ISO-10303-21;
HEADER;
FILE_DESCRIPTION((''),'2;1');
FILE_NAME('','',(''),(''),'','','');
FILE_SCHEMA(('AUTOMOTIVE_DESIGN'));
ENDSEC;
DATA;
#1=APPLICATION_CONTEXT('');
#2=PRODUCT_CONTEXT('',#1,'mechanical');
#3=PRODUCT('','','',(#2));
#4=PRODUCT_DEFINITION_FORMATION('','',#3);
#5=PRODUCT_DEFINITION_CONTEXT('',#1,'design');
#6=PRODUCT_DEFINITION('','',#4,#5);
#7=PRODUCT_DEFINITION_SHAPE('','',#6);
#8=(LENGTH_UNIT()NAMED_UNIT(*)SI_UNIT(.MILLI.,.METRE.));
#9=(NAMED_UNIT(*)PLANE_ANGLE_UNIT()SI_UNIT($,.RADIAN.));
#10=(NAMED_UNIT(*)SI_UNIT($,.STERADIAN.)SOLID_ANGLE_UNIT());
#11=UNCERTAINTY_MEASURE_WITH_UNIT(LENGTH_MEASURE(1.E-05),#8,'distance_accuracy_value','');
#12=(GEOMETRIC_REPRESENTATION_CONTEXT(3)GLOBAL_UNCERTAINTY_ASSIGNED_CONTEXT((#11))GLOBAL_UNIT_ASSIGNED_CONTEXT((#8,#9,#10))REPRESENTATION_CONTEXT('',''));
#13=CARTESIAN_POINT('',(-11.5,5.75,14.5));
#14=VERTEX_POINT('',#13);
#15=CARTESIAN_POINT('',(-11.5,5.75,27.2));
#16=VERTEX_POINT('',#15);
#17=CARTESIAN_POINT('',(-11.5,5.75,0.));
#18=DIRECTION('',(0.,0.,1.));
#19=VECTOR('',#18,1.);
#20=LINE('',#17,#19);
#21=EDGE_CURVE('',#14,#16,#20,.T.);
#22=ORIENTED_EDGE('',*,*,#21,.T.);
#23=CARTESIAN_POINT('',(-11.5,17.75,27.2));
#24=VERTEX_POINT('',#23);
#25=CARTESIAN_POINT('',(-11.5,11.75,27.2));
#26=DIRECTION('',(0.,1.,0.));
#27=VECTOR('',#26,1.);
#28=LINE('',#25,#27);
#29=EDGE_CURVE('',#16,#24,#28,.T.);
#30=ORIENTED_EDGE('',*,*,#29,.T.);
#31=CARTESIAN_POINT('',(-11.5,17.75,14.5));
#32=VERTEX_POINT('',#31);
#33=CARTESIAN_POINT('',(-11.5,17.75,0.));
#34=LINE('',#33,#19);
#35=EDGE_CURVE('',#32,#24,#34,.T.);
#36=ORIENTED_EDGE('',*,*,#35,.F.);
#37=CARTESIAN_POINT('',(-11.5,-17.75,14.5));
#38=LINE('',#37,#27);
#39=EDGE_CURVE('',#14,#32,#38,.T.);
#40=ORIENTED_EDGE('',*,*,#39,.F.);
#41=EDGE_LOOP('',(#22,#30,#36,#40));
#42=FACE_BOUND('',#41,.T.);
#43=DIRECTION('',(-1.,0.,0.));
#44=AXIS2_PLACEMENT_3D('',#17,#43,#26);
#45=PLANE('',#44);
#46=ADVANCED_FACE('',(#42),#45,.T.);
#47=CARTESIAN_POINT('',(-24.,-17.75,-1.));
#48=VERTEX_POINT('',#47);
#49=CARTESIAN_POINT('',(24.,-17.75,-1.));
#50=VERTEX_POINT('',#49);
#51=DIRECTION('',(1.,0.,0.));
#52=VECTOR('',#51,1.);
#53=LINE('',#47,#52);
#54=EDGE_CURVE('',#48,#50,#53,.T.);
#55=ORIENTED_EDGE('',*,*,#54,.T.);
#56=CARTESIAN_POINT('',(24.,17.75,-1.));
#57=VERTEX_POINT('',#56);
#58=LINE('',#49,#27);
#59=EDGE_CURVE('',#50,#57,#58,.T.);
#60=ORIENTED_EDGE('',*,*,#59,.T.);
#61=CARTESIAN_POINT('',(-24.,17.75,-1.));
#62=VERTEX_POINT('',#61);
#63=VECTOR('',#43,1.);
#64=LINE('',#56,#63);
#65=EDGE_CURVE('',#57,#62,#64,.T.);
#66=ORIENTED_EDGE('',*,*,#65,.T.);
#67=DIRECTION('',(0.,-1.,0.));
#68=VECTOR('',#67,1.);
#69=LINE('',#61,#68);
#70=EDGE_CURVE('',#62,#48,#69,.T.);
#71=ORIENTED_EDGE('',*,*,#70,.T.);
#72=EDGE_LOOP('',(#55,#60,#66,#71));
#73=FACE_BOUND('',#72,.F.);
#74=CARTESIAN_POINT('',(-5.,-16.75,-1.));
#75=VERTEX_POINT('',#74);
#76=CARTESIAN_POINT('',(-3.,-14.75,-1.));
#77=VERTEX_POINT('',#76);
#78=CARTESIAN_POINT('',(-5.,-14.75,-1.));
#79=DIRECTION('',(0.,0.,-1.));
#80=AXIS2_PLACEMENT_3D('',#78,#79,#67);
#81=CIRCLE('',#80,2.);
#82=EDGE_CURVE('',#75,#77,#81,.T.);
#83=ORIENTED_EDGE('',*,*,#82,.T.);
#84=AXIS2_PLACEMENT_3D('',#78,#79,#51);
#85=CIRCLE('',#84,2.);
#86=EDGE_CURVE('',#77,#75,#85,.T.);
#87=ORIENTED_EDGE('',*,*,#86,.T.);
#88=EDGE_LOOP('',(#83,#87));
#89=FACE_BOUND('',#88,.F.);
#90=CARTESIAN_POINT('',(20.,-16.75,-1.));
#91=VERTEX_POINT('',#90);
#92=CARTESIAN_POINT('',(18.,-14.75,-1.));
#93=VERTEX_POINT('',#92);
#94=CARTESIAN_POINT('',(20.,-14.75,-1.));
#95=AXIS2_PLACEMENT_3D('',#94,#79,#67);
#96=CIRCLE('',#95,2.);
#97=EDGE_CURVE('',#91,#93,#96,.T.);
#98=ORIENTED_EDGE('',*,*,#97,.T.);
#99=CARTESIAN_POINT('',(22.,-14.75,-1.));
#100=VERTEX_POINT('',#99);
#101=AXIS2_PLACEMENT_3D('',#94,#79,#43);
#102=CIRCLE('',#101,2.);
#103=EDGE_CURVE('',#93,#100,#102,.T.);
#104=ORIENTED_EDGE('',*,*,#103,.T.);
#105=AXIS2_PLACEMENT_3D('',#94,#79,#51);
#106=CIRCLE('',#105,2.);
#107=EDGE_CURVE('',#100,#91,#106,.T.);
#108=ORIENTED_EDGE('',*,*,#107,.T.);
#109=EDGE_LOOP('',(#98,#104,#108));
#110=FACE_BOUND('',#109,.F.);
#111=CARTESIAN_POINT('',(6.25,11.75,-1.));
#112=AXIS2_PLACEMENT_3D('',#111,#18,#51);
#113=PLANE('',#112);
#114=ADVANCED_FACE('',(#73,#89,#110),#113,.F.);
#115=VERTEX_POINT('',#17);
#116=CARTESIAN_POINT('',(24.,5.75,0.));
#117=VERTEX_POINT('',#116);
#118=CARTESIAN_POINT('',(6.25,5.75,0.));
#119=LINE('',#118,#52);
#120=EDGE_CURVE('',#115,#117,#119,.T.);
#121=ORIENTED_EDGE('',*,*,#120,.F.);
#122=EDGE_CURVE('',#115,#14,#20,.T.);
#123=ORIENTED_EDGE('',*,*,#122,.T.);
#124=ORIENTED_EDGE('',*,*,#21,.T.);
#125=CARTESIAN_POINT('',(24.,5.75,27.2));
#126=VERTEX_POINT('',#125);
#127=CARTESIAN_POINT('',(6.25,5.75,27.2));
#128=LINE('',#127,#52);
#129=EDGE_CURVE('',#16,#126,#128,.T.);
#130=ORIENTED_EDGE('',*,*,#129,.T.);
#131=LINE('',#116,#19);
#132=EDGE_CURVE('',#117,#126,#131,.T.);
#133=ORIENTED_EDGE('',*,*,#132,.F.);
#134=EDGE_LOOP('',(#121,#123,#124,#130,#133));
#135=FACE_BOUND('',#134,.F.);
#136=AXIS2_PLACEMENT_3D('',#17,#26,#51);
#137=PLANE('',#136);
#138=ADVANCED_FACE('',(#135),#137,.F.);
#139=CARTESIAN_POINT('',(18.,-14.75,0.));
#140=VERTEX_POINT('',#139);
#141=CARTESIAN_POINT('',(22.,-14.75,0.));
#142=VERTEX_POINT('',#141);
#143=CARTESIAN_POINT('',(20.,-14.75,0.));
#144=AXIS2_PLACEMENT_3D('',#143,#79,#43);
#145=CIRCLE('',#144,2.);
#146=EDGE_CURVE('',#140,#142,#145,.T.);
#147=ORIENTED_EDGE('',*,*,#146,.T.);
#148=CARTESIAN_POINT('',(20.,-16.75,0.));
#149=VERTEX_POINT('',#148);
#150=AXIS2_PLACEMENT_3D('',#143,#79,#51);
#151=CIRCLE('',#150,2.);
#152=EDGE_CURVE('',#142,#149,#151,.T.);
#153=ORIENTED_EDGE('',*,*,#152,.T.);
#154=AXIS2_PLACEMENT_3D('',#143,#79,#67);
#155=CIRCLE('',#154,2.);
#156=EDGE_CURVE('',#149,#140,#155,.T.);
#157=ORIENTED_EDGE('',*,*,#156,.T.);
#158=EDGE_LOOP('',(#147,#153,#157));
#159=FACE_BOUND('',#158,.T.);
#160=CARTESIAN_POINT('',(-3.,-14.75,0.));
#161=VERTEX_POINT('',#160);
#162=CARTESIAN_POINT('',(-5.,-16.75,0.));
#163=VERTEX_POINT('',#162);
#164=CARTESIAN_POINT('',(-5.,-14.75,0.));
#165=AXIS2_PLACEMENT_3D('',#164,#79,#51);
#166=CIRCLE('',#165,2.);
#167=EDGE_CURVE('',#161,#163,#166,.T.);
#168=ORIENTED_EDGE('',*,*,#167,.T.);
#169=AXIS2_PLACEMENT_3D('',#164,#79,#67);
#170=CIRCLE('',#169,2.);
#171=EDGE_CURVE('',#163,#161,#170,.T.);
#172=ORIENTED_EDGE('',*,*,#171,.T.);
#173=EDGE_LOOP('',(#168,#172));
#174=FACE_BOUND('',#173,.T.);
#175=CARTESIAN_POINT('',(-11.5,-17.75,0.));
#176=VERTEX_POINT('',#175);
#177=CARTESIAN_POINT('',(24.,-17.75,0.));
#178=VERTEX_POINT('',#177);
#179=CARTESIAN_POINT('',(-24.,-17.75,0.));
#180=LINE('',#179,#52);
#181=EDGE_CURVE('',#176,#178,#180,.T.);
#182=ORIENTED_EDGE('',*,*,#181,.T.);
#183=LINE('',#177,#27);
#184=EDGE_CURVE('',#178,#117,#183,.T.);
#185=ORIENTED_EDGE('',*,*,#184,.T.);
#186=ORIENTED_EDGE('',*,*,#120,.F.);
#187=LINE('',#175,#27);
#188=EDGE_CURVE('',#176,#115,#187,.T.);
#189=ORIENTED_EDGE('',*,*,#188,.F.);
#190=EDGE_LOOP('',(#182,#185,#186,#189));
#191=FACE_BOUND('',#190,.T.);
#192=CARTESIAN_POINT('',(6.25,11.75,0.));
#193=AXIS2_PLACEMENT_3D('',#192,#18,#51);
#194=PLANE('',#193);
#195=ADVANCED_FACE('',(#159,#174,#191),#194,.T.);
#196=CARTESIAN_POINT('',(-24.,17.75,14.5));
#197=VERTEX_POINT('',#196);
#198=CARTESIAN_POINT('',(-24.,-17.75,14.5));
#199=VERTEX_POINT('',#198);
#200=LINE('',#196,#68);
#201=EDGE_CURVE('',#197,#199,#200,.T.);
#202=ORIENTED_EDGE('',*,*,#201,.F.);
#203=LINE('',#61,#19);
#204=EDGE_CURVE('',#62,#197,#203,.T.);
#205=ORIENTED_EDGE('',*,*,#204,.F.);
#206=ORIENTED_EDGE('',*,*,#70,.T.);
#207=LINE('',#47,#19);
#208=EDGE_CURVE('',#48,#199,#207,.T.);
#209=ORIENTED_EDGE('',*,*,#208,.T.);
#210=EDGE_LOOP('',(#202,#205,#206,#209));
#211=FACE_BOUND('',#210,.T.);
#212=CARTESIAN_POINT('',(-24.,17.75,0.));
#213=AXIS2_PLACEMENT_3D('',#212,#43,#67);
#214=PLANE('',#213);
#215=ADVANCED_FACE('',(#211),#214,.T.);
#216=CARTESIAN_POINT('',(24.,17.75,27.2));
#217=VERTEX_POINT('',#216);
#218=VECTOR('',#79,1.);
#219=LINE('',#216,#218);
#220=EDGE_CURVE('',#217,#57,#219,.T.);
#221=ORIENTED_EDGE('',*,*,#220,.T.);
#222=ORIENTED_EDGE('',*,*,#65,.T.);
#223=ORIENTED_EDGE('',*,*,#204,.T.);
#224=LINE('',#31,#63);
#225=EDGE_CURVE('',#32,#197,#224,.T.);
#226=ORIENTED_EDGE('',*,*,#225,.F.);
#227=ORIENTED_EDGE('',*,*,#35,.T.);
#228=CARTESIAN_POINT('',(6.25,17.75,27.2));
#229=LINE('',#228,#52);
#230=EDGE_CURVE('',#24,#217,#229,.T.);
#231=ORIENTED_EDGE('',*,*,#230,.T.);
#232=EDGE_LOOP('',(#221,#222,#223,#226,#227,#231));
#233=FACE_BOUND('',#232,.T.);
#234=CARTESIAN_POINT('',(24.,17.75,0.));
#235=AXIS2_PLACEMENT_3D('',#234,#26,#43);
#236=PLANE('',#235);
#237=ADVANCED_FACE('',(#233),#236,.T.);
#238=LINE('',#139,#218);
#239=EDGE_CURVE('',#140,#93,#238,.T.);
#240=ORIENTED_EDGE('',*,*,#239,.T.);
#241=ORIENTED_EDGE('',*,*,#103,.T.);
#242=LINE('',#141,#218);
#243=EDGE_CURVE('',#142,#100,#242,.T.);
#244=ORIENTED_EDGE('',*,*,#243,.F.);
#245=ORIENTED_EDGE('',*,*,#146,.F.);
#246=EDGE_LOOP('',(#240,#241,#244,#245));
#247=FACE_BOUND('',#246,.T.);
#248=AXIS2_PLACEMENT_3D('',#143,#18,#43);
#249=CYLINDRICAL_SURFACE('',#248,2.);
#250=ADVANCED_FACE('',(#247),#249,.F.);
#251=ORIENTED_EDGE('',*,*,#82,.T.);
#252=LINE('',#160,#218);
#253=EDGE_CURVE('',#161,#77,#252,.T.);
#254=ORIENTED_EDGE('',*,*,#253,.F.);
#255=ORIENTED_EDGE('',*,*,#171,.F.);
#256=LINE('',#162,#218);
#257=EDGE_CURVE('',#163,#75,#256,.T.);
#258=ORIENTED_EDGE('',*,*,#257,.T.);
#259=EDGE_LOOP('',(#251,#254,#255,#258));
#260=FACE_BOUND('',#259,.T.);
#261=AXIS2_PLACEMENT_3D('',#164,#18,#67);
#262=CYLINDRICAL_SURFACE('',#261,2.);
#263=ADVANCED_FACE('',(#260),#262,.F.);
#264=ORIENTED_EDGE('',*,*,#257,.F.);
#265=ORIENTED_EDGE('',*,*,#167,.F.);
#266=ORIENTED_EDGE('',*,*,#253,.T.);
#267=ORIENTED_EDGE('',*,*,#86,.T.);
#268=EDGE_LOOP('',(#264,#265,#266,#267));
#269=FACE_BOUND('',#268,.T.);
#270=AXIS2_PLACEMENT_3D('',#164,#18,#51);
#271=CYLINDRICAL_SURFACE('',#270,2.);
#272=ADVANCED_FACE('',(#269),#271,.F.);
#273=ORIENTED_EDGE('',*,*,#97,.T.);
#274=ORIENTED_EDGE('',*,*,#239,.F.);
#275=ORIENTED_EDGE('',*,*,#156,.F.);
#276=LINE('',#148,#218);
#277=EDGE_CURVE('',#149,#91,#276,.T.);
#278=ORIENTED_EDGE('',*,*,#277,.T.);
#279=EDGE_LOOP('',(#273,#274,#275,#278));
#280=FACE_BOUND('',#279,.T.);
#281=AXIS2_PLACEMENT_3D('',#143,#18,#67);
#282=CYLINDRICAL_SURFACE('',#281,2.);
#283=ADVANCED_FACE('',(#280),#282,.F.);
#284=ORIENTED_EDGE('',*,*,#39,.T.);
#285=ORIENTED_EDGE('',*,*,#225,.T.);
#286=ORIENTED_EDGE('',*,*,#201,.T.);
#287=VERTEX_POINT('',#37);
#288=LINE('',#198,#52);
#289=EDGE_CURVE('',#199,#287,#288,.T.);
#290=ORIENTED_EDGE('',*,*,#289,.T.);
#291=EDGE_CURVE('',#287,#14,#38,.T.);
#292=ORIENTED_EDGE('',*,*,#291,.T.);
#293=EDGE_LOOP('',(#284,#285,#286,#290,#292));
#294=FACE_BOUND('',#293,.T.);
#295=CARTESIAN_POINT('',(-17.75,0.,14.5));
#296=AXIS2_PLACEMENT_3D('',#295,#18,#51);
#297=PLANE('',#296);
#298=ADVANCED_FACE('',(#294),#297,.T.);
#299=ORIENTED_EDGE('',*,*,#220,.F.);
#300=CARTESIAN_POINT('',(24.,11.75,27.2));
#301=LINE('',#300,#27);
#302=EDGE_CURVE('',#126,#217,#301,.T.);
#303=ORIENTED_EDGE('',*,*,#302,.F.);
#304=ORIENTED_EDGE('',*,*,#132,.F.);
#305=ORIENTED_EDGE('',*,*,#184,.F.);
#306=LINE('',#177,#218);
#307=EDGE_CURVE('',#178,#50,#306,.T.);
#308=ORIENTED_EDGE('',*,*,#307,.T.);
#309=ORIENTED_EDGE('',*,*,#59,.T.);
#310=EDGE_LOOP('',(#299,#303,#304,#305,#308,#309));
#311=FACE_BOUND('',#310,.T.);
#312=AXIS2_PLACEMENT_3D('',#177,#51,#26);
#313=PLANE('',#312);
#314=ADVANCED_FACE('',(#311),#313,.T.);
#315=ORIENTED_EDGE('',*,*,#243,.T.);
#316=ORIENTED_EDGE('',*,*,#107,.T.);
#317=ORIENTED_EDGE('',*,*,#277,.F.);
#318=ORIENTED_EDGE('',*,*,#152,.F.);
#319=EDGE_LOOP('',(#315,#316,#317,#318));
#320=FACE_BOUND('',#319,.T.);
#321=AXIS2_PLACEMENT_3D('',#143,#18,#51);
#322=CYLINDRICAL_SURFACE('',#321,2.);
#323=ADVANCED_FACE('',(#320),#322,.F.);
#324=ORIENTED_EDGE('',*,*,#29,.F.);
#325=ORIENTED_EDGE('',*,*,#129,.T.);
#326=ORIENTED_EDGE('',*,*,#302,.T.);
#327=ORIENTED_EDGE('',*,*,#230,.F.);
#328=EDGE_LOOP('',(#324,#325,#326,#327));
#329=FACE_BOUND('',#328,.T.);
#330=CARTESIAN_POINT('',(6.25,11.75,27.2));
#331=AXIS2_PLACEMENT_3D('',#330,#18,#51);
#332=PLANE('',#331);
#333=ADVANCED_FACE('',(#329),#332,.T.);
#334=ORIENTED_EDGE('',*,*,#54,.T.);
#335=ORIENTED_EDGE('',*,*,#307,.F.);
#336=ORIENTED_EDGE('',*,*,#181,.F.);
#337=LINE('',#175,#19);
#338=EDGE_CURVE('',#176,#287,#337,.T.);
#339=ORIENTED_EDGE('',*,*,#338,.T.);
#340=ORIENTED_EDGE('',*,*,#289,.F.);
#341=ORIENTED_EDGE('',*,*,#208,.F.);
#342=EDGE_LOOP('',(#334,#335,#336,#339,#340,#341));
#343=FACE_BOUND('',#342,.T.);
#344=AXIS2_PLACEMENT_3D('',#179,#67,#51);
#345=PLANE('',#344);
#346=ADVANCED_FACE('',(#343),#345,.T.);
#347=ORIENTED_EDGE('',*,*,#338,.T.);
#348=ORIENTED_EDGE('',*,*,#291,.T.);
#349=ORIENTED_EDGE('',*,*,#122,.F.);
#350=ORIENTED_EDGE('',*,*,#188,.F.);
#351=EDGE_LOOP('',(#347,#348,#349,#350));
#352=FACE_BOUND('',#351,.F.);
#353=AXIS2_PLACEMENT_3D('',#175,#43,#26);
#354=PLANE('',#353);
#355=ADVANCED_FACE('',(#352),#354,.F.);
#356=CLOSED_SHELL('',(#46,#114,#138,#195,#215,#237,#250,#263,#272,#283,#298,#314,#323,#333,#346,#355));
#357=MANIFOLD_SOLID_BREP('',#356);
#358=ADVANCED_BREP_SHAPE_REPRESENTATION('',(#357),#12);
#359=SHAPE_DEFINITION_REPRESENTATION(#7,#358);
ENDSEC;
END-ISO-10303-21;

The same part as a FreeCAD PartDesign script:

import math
import FreeCAD as App
import Part
import Sketcher

V = App.Vector

doc = App.newDocument("Part")
body = doc.addObject("PartDesign::Body", "Body")

sketch1 = body.newObject("Sketcher::SketchObject", "Sketch")
sketch1.AttachmentSupport = (doc.getObject("XY_Plane"), [""])
sketch1.MapMode = "FlatFace"
sketch1.addGeometry([
    Part.LineSegment(V(-24, -18, 0), V(-12, -18, 0)),
    Part.LineSegment(V(-12, -18, 0), V(-12, 18, 0)),
    Part.LineSegment(V(-12, 18, 0), V(-24, 18, 0)),
    Part.LineSegment(V(-24, 18, 0), V(-24, -18, 0)),
], False)
sketch1.addConstraint([
    Sketcher.Constraint("Coincident", 0, 2, 1, 1),
    Sketcher.Constraint("Coincident", 1, 2, 2, 1),
    Sketcher.Constraint("Coincident", 2, 2, 3, 1),
    Sketcher.Constraint("Coincident", 3, 2, 0, 1),
    Sketcher.Constraint("Horizontal", 0),
    Sketcher.Constraint("Vertical", 1),
    Sketcher.Constraint("Horizontal", 2),
    Sketcher.Constraint("Vertical", 3),
    Sketcher.Constraint("DistanceX", 0, 1, 0, 2, 12.5),
    Sketcher.Constraint("DistanceY", 1, 1, 1, 2, 35.5),
    Sketcher.Constraint("DistanceX", 2, 2, -1, 1, 24.0),
    Sketcher.Constraint("DistanceY", 0, 2, -1, 1, 17.75),
])
pad1 = body.newObject("PartDesign::Pad", "Pad")
pad1.Profile = sketch1
pad1.Length = 14.5

sketch2 = body.newObject("Sketcher::SketchObject", "Sketch001")
sketch2.AttachmentSupport = (doc.getObject("XY_Plane"), [""])
sketch2.MapMode = "FlatFace"
sketch2.addGeometry([
    Part.LineSegment(V(-12, 18, 0), V(-12, 6, 0)),
    Part.LineSegment(V(-12, 6, 0), V(24, 6, 0)),
    Part.LineSegment(V(24, 6, 0), V(24, 18, 0)),
    Part.LineSegment(V(24, 18, 0), V(-12, 18, 0)),
], False)
sketch2.addConstraint([
    Sketcher.Constraint("Coincident", 0, 2, 1, 1),
    Sketcher.Constraint("Coincident", 1, 2, 2, 1),
    Sketcher.Constraint("Coincident", 2, 2, 3, 1),
    Sketcher.Constraint("Coincident", 3, 2, 0, 1),
    Sketcher.Constraint("Vertical", 0),
    Sketcher.Constraint("Horizontal", 1),
    Sketcher.Constraint("Vertical", 2),
    Sketcher.Constraint("Horizontal", 3),
    Sketcher.Constraint("DistanceY", 0, 2, 0, 1, 12.0),
    Sketcher.Constraint("DistanceX", 1, 1, 1, 2, 35.5),
    Sketcher.Constraint("DistanceX", -1, 1, 1, 2, 24.0),
    Sketcher.Constraint("DistanceY", -1, 1, 0, 2, 5.75),
])
pad2 = body.newObject("PartDesign::Pad", "Pad001")
pad2.Profile = sketch2
pad2.Length = 27.2

sketch3 = body.newObject("Sketcher::SketchObject", "Sketch002")
sketch3.AttachmentSupport = (doc.getObject("XY_Plane"), [""])
sketch3.MapMode = "FlatFace"
sketch3.addGeometry([
    Part.LineSegment(V(24, 17.8, 0), V(-24, 17.8, 0)),
    Part.LineSegment(V(-24, 17.8, 0), V(-24, -17.8, 0)),
    Part.LineSegment(V(-24, -17.8, 0), V(24, -17.8, 0)),
    Part.LineSegment(V(24, -17.8, 0), V(24, 17.8, 0)),
    Part.ArcOfCircle(Part.Circle(V(20, -14.8, 0), V(0, 0, 1), 2), math.radians(180), math.radians(270)),
    Part.ArcOfCircle(Part.Circle(V(20, -14.8, 0), V(0, 0, 1), 2), math.radians(0), math.radians(180)),
    Part.ArcOfCircle(Part.Circle(V(20, -14.8, 0), V(0, 0, 1), 2), math.radians(-90), math.radians(0)),
    Part.ArcOfCircle(Part.Circle(V(-5, -14.8, 0), V(0, 0, 1), 2), math.radians(0), math.radians(270)),
    Part.ArcOfCircle(Part.Circle(V(-5, -14.8, 0), V(0, 0, 1), 2), math.radians(-90), math.radians(0)),
], False)
sketch3.addConstraint([
    Sketcher.Constraint("Coincident", 0, 2, 1, 1),
    Sketcher.Constraint("Coincident", 1, 2, 2, 1),
    Sketcher.Constraint("Coincident", 2, 2, 3, 1),
    Sketcher.Constraint("Coincident", 3, 2, 0, 1),
    Sketcher.Constraint("Tangent", 4, 1, 5, 2),
    Sketcher.Constraint("Tangent", 5, 1, 6, 2),
    Sketcher.Constraint("Tangent", 6, 1, 4, 2),
    Sketcher.Constraint("Tangent", 7, 1, 8, 2),
    Sketcher.Constraint("Coincident", 8, 1, 7, 2),
    Sketcher.Constraint("Horizontal", 0),
    Sketcher.Constraint("Vertical", 1),
    Sketcher.Constraint("Horizontal", 2),
    Sketcher.Constraint("Vertical", 3),
    Sketcher.Constraint("Equal", 6, 7),
    Sketcher.Constraint("Symmetric", 0, 2, 2, 2, -1, 1),
    Sketcher.Constraint("Horizontal", 6, 3, 7, 3),
    Sketcher.Constraint("Horizontal", 8, 3, 4, 1),
    Sketcher.Constraint("Horizontal", 4, 1, 5, 1),
    Sketcher.Constraint("Horizontal", 5, 1, 7, 1),
    Sketcher.Constraint("Vertical", 5, 3, 6, 1),
    Sketcher.Constraint("Vertical", 7, 3, 8, 1),
    Sketcher.Constraint("Radius", 4, 2.0),
    Sketcher.Constraint("DistanceX", 0, 2, 0, 1, 48.0),
    Sketcher.Constraint("DistanceY", 1, 2, 1, 1, 35.5),
    Sketcher.Constraint("DistanceX", -1, 1, 4, 3, 20.0),
    Sketcher.Constraint("DistanceX", 7, 3, -1, 1, 5.0),
    Sketcher.Constraint("DistanceY", 1, 2, 7, 3, 3.0),
])
pad3 = body.newObject("PartDesign::Pad", "Pad002")
pad3.Profile = sketch3
pad3.Length = 1
pad3.Reversed = True

doc.recompute()
